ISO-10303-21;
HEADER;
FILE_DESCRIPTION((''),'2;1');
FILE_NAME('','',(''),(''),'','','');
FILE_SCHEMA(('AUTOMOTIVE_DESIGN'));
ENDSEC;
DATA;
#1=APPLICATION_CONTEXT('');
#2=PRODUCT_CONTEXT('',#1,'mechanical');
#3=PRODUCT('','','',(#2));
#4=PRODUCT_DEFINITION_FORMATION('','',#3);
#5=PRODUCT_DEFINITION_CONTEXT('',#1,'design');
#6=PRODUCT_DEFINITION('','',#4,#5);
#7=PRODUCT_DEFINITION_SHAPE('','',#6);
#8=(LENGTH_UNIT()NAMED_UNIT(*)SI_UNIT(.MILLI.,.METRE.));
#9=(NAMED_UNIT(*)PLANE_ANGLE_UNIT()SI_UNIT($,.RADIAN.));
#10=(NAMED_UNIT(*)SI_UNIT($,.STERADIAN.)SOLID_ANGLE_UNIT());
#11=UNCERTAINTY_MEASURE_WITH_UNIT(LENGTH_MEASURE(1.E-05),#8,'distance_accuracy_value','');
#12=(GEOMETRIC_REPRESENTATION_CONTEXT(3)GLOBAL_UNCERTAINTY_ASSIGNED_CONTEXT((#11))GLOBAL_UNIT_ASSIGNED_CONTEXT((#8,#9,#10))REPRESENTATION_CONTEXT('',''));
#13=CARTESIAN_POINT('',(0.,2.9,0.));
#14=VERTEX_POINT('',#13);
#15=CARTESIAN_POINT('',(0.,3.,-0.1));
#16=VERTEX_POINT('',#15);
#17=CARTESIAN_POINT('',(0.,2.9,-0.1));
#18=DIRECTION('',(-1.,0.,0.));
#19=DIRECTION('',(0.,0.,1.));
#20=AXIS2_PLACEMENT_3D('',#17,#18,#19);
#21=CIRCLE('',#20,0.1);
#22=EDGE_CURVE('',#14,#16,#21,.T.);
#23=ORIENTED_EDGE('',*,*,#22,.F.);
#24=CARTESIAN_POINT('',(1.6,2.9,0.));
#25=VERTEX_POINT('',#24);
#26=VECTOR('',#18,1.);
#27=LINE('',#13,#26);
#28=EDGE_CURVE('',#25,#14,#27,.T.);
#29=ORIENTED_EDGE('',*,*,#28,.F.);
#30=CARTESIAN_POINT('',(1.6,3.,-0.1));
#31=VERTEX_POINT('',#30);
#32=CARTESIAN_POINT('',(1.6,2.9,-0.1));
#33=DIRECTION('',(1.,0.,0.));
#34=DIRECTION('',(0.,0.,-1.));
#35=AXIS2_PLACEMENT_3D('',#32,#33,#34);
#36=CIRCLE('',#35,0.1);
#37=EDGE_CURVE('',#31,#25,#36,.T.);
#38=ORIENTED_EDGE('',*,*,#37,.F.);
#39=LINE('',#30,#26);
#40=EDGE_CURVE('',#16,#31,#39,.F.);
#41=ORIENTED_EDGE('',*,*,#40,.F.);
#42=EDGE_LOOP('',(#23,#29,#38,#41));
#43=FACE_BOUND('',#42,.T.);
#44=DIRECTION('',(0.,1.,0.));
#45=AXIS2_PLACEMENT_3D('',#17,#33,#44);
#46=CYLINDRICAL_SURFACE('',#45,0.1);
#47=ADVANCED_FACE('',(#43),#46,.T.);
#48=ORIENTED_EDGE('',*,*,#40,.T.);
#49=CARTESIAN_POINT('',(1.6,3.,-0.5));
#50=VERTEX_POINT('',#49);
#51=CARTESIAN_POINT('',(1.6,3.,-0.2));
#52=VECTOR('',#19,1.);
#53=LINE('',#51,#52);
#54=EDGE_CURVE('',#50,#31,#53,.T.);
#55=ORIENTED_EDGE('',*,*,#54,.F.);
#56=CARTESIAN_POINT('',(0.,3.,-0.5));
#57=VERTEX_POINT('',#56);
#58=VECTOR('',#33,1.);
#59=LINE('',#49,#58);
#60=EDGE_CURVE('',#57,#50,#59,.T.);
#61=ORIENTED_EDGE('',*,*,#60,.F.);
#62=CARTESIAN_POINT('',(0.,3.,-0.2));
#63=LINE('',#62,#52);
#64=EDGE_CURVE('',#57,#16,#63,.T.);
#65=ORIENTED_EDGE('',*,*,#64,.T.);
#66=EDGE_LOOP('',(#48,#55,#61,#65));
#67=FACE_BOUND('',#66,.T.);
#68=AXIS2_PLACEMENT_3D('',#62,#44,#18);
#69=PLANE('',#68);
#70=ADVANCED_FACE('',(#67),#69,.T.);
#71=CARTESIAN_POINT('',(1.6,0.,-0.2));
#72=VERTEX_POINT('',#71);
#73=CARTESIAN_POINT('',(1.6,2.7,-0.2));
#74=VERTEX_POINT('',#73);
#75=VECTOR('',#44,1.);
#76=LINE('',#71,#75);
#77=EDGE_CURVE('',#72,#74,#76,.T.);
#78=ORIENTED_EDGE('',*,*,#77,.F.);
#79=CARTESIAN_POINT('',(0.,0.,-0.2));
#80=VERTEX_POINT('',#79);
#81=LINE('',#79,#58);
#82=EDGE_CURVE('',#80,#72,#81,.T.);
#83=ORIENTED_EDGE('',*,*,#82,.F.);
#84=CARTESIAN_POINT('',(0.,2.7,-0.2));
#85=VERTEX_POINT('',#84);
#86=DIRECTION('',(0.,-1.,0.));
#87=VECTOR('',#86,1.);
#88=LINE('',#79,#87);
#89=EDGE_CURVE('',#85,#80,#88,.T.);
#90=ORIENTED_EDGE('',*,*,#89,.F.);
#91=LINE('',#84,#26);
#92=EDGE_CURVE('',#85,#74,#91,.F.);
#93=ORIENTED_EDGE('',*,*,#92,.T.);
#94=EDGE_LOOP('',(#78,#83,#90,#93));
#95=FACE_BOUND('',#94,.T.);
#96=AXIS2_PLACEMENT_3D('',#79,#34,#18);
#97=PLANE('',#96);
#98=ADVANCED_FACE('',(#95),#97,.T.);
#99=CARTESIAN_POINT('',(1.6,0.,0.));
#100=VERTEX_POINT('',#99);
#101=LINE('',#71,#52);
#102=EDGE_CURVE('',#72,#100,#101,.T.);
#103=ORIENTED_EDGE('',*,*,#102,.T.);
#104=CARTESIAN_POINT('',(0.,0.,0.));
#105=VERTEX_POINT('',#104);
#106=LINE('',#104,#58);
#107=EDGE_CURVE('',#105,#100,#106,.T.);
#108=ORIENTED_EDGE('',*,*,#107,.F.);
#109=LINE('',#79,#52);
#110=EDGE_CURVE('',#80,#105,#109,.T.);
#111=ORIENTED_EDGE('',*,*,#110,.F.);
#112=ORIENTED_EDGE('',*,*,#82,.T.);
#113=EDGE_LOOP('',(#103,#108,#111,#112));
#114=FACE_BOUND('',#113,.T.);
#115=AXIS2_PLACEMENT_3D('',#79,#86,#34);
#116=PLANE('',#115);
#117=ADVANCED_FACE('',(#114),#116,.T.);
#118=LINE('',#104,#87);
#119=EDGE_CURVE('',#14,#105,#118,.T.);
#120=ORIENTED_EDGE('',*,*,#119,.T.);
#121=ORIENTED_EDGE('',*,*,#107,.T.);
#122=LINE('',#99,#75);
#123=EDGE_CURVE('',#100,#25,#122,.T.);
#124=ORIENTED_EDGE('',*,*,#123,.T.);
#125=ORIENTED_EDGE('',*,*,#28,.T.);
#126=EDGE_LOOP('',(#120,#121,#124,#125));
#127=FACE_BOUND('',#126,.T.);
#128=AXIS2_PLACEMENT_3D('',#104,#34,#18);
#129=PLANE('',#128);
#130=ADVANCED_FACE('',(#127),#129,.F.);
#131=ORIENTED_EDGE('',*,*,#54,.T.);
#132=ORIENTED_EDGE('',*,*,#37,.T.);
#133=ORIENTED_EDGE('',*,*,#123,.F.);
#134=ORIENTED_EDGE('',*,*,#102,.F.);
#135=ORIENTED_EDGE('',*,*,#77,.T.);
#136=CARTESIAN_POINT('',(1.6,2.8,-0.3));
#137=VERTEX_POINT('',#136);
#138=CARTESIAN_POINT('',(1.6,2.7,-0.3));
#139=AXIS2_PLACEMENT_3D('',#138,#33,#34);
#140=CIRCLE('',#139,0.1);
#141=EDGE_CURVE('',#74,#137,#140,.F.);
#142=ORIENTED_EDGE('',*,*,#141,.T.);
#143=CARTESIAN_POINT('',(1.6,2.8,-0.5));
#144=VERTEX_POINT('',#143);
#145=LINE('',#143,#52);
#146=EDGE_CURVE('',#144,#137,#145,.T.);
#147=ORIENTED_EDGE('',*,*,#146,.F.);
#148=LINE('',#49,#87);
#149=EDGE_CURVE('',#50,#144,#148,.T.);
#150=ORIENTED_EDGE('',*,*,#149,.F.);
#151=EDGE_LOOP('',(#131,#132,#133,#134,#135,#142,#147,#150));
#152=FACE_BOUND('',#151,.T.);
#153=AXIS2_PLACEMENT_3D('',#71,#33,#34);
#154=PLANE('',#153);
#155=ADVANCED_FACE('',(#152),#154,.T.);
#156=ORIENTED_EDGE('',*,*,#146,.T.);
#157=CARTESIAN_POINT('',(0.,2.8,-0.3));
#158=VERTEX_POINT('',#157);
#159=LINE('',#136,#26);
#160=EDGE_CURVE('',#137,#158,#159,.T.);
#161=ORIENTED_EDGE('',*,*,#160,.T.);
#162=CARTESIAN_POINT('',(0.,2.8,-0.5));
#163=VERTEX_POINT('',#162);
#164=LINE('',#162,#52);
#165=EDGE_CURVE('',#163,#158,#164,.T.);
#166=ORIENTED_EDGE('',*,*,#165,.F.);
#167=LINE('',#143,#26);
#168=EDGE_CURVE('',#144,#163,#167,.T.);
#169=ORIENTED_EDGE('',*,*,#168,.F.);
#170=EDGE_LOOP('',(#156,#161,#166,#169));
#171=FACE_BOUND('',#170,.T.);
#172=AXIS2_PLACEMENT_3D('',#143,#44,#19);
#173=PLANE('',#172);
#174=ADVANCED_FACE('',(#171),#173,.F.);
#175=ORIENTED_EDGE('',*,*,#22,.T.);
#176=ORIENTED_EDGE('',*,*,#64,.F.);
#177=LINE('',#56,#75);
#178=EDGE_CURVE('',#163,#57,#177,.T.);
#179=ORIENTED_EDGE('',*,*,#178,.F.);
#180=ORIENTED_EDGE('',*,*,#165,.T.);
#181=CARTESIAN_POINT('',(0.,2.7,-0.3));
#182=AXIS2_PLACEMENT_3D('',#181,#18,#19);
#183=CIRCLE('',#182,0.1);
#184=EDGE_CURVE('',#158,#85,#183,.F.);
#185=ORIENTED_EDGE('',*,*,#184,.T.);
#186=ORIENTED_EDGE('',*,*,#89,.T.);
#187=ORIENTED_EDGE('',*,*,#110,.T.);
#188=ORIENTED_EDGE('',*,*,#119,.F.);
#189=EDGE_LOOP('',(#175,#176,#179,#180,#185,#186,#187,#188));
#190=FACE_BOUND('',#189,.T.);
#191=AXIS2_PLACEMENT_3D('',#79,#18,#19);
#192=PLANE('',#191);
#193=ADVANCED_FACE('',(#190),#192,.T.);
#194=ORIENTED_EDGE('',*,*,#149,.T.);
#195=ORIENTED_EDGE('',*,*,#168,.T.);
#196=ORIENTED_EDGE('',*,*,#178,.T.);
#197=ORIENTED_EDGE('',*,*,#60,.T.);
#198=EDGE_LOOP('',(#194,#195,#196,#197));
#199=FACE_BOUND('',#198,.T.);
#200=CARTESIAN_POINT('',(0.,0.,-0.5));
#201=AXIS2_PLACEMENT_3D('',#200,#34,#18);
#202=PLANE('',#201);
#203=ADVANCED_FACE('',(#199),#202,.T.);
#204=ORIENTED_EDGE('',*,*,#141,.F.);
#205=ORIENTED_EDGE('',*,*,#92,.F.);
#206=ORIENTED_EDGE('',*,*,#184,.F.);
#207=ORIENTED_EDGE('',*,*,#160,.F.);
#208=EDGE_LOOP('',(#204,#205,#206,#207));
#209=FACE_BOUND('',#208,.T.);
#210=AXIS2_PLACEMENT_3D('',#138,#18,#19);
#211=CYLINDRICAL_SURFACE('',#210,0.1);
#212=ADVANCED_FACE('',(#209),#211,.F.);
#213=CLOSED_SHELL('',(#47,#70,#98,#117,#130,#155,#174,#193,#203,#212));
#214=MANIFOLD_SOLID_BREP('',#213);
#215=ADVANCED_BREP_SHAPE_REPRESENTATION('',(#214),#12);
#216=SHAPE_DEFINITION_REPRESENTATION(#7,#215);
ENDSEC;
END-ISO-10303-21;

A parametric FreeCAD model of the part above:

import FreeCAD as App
import Part
import Sketcher

V = App.Vector
Q = App.Units.Quantity


def edges_at(feature, points):
    """Names of the edges that pass closest to the given points."""
    edges = feature.Shape.Edges
    near = lambda p: min(range(len(edges)), key=lambda i: edges[i].distToShape(Part.Vertex(*p))[0])
    return sorted({f"Edge{near(p) + 1}" for p in points})

doc = App.newDocument("Part")
body = doc.addObject("PartDesign::Body", "Body")

# Sketch on XY plane
sketch1 = doc.addObject("Sketcher::SketchObject", "Sketch")
body.addObject(sketch1)
sketch1.AttachmentSupport = (doc.XY_Plane, [""])
sketch1.MapMode = "FlatFace"
sketch1.addGeometry(Part.LineSegment(V(0, 3, 0), V(0, 0, 0)), False)
sketch1.addGeometry(Part.LineSegment(V(0, 0, 0), V(1.6, 0, 0)), False)
sketch1.addGeometry(Part.LineSegment(V(1.6, 0, 0), V(1.6, 3, 0)), False)
sketch1.addGeometry(Part.LineSegment(V(1.6, 3, 0), V(0, 3, 0)), False)
sketch1.addConstraint(Sketcher.Constraint("Coincident", 0, 2, 1, 1))
sketch1.addConstraint(Sketcher.Constraint("Coincident", 1, 2, 2, 1))
sketch1.addConstraint(Sketcher.Constraint("Coincident", 2, 2, 3, 1))
sketch1.addConstraint(Sketcher.Constraint("Coincident", 3, 2, 0, 1))
sketch1.addConstraint(Sketcher.Constraint("Vertical", 0))
sketch1.addConstraint(Sketcher.Constraint("Horizontal", 1))
sketch1.addConstraint(Sketcher.Constraint("Vertical", 2))
sketch1.addConstraint(Sketcher.Constraint("Horizontal", 3))
sketch1.addConstraint(Sketcher.Constraint("Coincident", 0, 2, -1, 1))
sketch1.addConstraint(Sketcher.Constraint("DistanceY", 0, 2, 0, 1, Q("3 mm")))
sketch1.addConstraint(Sketcher.Constraint("DistanceX", 1, 1, 1, 2, Q("1.6 mm")))
pad1 = doc.addObject("PartDesign::Pad", "Pad")
body.addObject(pad1)
pad1.Profile = sketch1
pad1.Length = 0.2
pad1.Reversed = True

# Sketch on XY plane
sketch2 = doc.addObject("Sketcher::SketchObject", "Sketch001")
body.addObject(sketch2)
sketch2.AttachmentSupport = (doc.XY_Plane, [""])
sketch2.MapMode = "FlatFace"
sketch2.AttachmentOffset = App.Placement(V(0, 0, -0.2), App.Rotation())
sketch2.addGeometry(Part.LineSegment(V(1.6, 3, 0), V(1.6, 2.8, 0)), False)
sketch2.addGeometry(Part.LineSegment(V(1.6, 2.8, 0), V(0, 2.8, 0)), False)
sketch2.addGeometry(Part.LineSegment(V(0, 2.8, 0), V(0, 3, 0)), False)
sketch2.addGeometry(Part.LineSegment(V(0, 3, 0), V(1.6, 3, 0)), False)
sketch2.addConstraint(Sketcher.Constraint("Coincident", 0, 2, 1, 1))
sketch2.addConstraint(Sketcher.Constraint("Coincident", 1, 2, 2, 1))
sketch2.addConstraint(Sketcher.Constraint("Coincident", 2, 2, 3, 1))
sketch2.addConstraint(Sketcher.Constraint("Coincident", 3, 2, 0, 1))
sketch2.addConstraint(Sketcher.Constraint("Vertical", 0))
sketch2.addConstraint(Sketcher.Constraint("Horizontal", 1))
sketch2.addConstraint(Sketcher.Constraint("Vertical", 2))
sketch2.addConstraint(Sketcher.Constraint("Horizontal", 3))
sketch2.addConstraint(Sketcher.Constraint("PointOnObject", 1, 2, -2))
sketch2.addConstraint(Sketcher.Constraint("DistanceX", 1, 2, 1, 1, Q("1.6 mm")))
sketch2.addConstraint(Sketcher.Constraint("DistanceY", 0, 2, 0, 1, Q("0.2 mm")))
sketch2.addConstraint(Sketcher.Constraint("DistanceY", -1, 1, 2, 2, Q("3 mm")))
pad2 = doc.addObject("PartDesign::Pad", "Pad001")
body.addObject(pad2)
pad2.Profile = sketch2
pad2.Length = 0.3
pad2.Reversed = True
doc.recompute()

fillet = doc.addObject("PartDesign::Fillet", "Fillet")
body.addObject(fillet)
fillet.Base = (pad2, edges_at(pad2, [(0.8, 3, 0), (0.8, 2.8, -0.2)]))
fillet.Radius = 0.1

doc.recompute()
